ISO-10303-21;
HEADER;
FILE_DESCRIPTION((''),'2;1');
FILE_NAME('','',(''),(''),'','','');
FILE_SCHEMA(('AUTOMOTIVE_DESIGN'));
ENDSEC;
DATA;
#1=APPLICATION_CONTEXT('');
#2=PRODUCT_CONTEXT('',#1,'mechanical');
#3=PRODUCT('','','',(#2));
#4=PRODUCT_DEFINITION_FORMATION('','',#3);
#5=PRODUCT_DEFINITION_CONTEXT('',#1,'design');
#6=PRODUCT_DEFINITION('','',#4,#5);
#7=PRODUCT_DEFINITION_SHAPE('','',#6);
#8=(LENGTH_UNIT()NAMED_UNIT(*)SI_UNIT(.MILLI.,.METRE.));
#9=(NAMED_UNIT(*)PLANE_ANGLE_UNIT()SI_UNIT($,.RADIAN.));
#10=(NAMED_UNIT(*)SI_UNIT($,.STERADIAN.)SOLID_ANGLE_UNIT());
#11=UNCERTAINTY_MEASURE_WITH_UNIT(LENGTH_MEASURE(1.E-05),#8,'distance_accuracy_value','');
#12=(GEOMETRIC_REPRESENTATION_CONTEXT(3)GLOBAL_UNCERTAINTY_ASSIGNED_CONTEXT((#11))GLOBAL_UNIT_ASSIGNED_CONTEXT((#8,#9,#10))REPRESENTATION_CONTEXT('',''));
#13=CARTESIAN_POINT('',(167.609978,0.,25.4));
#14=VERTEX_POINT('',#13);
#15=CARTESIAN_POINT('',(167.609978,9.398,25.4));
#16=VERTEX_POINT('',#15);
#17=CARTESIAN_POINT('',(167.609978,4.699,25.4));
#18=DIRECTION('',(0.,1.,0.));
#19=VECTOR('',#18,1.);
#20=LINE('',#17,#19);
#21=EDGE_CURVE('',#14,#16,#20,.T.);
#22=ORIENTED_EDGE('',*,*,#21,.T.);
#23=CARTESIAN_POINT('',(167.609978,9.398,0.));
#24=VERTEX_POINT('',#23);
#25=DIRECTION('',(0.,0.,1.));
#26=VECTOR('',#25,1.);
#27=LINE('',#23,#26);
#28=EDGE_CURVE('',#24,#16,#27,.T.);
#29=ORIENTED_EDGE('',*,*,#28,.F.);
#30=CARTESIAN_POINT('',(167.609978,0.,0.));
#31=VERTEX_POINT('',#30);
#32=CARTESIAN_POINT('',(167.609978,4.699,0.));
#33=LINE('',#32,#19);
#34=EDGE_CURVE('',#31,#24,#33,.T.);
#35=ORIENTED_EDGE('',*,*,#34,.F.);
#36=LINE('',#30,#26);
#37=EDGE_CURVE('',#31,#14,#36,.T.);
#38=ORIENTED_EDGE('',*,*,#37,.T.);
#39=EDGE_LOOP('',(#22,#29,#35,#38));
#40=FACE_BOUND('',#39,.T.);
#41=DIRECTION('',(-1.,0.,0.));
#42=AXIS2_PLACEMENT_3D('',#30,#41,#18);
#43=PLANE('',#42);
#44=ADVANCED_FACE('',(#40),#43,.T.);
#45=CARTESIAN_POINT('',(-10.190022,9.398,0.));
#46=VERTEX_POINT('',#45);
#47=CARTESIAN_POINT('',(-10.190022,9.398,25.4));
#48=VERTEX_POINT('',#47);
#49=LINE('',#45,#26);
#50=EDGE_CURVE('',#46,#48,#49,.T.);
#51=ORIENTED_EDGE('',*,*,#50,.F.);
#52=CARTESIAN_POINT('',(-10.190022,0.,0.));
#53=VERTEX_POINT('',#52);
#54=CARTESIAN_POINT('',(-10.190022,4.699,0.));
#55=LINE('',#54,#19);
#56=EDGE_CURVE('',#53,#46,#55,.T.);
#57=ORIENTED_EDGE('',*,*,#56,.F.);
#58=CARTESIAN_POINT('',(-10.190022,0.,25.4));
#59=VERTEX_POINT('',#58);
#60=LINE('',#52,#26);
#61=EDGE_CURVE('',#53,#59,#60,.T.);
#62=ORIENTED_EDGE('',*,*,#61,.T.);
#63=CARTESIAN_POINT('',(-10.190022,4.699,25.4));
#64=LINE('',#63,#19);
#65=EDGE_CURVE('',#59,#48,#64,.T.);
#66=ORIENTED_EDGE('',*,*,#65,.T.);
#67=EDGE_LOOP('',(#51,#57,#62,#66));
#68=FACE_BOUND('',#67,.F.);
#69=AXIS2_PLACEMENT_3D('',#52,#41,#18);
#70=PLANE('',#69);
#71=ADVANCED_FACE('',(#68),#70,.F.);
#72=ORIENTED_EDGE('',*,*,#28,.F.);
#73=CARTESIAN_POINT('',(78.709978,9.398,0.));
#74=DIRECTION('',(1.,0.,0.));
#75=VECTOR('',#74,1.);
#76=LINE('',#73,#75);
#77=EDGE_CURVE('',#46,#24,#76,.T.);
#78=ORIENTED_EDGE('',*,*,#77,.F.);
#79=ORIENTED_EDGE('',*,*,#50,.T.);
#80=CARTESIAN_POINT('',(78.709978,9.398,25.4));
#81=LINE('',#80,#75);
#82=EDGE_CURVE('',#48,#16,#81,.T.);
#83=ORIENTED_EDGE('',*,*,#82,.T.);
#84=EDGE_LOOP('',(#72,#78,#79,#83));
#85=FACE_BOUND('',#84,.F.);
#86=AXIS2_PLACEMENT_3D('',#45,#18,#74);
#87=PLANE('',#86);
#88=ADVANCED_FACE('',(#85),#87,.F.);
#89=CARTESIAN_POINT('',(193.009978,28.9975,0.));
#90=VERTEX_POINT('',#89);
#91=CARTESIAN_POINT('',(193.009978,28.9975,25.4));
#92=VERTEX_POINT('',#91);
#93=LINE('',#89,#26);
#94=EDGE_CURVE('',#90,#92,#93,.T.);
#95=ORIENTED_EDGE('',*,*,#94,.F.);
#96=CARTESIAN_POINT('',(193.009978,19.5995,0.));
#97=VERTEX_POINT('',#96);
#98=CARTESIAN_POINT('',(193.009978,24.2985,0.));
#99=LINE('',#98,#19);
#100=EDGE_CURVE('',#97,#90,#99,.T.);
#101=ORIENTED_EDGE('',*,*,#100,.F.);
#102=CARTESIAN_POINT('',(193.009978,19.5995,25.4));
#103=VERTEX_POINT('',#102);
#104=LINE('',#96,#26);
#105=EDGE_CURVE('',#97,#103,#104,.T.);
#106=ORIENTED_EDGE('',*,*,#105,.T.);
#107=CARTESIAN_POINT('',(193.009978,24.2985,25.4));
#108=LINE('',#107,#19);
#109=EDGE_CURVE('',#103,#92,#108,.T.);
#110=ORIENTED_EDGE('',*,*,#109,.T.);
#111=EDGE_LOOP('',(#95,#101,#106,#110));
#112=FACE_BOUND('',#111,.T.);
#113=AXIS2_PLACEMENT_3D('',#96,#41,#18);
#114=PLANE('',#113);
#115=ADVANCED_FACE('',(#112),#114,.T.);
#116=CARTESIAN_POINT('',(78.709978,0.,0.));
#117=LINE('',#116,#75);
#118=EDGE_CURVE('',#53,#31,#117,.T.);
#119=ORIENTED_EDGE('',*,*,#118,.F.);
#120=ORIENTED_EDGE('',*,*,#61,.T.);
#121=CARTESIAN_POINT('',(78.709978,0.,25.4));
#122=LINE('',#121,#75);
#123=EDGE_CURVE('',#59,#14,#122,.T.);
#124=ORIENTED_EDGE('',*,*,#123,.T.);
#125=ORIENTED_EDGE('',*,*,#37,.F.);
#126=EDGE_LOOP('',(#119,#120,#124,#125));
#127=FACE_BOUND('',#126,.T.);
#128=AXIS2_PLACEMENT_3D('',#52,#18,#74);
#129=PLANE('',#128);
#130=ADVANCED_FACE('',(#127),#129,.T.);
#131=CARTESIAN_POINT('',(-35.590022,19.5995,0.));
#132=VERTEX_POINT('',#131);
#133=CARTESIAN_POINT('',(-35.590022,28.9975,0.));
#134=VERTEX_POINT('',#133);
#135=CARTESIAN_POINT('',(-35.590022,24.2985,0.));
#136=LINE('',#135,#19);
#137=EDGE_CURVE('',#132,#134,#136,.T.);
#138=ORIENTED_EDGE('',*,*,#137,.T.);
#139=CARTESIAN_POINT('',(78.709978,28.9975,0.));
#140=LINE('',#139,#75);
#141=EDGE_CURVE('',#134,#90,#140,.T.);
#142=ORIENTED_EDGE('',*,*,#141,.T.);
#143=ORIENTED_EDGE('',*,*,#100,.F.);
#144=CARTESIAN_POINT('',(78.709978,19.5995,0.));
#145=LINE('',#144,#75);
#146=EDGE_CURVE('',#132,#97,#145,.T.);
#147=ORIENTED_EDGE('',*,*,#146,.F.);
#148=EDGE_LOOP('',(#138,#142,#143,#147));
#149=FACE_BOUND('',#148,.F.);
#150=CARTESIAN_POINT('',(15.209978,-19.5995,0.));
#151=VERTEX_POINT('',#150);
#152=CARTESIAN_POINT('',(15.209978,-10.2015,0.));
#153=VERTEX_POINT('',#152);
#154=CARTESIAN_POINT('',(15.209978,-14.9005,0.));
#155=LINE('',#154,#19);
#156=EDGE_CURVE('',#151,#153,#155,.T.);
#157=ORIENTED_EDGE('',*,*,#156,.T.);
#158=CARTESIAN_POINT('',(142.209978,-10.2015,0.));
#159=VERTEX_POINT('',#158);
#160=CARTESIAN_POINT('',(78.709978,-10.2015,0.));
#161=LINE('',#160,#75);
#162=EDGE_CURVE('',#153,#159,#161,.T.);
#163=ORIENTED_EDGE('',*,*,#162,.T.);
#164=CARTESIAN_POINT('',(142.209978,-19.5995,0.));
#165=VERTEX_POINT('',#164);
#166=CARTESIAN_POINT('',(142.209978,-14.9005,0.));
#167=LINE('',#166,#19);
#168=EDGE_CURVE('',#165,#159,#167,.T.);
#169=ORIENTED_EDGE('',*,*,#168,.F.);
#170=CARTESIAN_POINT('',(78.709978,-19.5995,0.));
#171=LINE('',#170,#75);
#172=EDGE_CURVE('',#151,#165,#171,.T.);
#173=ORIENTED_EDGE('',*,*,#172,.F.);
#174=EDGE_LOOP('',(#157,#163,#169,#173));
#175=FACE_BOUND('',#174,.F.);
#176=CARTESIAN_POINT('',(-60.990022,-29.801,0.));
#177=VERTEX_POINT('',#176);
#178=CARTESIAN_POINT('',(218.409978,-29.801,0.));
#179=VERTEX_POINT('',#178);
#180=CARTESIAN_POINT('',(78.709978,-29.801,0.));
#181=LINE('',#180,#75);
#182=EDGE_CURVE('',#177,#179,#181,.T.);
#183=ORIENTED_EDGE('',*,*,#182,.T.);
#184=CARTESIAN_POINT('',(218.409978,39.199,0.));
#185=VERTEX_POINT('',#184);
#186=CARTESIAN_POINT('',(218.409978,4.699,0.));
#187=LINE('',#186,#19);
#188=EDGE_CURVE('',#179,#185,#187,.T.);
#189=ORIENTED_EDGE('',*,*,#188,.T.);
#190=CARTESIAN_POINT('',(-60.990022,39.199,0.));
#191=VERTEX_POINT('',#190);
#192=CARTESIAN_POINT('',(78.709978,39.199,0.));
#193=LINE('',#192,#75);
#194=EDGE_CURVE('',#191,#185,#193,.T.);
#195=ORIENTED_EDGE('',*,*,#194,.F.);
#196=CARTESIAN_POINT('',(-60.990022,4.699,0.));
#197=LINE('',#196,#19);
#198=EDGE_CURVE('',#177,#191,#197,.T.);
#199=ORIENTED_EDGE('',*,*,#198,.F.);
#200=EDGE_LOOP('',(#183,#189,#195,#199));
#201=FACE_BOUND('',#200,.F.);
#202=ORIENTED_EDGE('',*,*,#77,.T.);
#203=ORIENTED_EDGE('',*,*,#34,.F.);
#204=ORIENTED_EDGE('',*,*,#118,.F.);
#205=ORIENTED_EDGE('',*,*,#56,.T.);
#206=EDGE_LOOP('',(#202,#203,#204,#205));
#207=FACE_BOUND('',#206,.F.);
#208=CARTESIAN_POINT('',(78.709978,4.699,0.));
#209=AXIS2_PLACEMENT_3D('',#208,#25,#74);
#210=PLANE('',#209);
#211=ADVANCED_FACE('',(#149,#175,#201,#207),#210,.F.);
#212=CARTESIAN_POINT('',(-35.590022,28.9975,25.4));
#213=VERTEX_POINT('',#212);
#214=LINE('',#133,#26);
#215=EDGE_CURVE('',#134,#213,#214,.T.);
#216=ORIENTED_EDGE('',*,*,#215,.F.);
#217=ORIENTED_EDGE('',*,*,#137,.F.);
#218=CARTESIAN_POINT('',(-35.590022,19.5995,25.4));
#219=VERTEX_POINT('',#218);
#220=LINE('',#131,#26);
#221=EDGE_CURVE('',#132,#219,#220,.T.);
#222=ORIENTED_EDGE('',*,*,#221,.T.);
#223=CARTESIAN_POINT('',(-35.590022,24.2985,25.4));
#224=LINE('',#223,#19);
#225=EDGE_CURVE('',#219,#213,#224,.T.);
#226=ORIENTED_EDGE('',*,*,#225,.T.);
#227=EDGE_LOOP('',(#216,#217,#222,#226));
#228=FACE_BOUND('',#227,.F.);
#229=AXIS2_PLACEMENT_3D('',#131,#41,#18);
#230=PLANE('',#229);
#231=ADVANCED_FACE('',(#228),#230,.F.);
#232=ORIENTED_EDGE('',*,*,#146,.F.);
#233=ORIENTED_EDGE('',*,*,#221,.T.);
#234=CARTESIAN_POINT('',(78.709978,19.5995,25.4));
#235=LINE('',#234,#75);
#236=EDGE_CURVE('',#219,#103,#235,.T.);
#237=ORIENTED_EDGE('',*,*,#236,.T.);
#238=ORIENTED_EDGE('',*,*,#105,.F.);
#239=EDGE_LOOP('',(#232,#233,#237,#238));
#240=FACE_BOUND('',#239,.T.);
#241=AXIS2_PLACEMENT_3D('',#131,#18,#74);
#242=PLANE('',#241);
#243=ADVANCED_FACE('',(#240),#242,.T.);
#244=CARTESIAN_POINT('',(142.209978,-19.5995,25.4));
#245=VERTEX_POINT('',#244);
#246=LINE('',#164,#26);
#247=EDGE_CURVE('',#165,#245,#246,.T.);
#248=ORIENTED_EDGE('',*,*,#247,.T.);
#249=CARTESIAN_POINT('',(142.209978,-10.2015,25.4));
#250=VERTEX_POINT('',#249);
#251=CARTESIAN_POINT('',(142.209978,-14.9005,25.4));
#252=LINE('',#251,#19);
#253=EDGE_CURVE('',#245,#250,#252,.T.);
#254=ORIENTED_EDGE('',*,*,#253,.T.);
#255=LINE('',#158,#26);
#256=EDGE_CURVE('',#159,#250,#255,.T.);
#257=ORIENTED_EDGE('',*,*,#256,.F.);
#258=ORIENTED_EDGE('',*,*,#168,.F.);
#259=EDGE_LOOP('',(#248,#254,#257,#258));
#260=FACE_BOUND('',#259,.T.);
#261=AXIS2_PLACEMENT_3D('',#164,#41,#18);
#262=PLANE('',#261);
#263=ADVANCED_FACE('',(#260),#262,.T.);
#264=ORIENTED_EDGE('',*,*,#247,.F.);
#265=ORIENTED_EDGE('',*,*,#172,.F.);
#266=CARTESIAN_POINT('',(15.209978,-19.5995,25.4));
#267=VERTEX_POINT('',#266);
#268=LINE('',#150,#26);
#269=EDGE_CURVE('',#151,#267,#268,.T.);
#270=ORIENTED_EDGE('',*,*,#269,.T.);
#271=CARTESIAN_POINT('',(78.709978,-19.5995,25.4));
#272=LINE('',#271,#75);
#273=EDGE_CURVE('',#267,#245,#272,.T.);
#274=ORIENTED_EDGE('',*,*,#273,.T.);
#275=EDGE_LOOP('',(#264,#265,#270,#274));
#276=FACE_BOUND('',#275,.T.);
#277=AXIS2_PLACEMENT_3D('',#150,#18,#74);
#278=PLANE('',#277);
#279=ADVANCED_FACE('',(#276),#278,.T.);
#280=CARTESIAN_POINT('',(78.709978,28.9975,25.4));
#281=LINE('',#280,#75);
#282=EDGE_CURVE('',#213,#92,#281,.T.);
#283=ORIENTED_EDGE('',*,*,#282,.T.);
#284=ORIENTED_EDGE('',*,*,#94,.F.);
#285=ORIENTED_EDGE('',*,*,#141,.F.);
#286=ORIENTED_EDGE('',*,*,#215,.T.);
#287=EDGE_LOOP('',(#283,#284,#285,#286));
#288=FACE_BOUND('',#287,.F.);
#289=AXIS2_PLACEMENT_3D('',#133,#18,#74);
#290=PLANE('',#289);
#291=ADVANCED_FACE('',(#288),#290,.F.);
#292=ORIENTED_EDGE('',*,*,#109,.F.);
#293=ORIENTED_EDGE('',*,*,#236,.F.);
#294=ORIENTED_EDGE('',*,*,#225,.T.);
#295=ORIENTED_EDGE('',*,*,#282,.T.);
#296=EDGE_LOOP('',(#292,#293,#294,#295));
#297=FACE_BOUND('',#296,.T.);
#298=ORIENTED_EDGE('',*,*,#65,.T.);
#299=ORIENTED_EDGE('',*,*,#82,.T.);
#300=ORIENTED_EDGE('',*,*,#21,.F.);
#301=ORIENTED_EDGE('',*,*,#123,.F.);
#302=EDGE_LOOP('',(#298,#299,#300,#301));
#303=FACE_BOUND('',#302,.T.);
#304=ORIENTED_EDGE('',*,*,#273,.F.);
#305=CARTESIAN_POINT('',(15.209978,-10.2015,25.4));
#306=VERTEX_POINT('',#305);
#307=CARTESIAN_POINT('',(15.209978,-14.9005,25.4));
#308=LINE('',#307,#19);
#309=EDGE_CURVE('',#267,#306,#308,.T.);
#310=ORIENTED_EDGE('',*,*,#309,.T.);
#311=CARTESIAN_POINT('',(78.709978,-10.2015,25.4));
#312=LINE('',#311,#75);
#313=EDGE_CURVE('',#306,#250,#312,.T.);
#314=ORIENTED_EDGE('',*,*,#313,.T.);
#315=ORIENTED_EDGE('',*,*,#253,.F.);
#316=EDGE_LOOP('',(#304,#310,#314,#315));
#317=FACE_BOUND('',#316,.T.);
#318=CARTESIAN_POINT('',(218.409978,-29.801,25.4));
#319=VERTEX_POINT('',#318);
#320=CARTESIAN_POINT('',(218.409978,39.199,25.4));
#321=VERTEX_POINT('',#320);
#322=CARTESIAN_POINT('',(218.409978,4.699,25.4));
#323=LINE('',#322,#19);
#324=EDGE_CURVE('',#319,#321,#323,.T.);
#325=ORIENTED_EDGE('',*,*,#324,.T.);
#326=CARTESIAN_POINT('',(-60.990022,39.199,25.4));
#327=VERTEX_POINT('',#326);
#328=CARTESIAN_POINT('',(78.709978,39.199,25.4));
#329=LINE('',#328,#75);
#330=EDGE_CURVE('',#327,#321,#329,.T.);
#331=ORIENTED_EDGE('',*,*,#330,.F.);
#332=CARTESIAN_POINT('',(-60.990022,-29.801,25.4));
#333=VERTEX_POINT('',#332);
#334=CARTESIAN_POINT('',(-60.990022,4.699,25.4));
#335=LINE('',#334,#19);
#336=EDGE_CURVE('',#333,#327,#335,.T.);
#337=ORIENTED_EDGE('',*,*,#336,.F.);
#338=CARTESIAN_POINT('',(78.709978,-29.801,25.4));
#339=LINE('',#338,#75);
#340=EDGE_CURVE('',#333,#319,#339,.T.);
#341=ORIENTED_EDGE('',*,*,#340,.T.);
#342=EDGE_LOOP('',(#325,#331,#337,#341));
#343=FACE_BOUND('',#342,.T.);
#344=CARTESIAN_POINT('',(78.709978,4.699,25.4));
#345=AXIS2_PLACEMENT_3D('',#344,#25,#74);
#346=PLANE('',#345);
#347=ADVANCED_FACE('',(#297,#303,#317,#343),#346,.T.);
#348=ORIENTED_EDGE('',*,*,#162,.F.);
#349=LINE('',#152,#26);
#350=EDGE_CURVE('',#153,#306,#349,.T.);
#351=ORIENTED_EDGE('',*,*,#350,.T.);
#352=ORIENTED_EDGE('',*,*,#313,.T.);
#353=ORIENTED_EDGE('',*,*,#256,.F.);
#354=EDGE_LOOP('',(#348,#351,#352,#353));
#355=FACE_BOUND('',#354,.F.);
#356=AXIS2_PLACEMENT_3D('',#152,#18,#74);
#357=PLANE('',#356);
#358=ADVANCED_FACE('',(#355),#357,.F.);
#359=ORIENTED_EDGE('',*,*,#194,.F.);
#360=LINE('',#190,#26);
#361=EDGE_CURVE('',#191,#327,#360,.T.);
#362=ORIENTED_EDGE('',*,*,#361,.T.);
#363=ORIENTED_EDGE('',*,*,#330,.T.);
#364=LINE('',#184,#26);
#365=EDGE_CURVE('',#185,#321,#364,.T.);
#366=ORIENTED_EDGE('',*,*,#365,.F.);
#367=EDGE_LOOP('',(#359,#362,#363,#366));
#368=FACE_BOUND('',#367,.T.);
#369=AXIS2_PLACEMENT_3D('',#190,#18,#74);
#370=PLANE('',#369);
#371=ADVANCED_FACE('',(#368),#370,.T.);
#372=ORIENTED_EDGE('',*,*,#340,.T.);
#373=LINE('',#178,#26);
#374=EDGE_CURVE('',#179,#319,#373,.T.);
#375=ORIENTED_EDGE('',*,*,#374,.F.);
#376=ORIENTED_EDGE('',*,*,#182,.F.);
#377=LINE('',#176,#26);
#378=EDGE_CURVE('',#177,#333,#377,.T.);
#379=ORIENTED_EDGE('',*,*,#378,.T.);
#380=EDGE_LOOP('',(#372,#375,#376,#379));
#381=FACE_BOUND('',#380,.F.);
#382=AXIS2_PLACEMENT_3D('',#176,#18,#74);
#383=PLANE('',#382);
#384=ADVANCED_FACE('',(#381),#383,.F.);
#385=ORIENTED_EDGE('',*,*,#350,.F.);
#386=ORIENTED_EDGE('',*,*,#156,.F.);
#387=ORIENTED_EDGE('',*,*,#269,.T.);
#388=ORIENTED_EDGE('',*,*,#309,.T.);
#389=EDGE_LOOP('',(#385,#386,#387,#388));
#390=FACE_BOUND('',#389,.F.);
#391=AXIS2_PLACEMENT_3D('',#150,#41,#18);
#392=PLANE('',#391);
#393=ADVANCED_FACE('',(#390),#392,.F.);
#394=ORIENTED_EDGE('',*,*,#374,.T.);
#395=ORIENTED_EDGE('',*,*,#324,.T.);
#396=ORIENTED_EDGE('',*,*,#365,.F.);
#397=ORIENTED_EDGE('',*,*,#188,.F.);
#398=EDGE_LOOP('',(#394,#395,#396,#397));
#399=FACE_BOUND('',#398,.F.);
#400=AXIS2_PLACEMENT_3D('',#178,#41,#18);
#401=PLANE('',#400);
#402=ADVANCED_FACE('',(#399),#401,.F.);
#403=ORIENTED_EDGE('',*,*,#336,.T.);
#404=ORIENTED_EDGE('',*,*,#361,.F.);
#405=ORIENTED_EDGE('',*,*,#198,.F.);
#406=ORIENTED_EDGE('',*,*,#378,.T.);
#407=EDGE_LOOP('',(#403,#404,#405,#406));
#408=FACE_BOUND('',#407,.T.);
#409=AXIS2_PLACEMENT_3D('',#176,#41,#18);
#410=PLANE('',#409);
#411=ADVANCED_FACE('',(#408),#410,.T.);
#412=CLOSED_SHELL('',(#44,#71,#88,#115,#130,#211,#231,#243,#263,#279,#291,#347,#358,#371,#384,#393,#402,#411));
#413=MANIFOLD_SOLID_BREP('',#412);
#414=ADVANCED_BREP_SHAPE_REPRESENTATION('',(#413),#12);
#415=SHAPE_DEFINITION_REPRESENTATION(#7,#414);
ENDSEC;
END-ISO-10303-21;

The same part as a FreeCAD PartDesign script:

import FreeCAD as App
import Part
import Sketcher
from FreeCAD import Vector
Q = App.Units.Quantity


def add_polygon(sketch, points):
    """Adds a closed chain of lines whose ends are joined by coincident constraints."""
    first, n = sketch.GeometryCount, len(points)
    for a, b in zip(points, points[1:] + points[:1]):
        sketch.addGeometry(Part.LineSegment(App.Vector(*a, 0), App.Vector(*b, 0)), False)
    for i in range(n):
        sketch.addConstraint(Sketcher.Constraint("Coincident", first + i, 2, first + (i + 1) % n, 1))

doc = App.newDocument("Part")
body = doc.addObject("PartDesign::Body", "Body")

sketch1 = body.newObject("Sketcher::SketchObject", "Sketch")
sketch1.AttachmentSupport = (doc.getObject("XY_Plane"), [""])
sketch1.MapMode = "FlatFace"
add_polygon(sketch1, [(-61, 39), (-61, -30), (218, -30), (218, 39)])
add_polygon(sketch1, [(142, -20), (15, -20), (15, -10), (142, -10)])
add_polygon(sketch1, [(168, 0), (-10, 0), (-10, 9), (168, 9)])
add_polygon(sketch1, [(193, 20), (-36, 20), (-36, 29), (193, 29)])
sketch1.addConstraint([
    Sketcher.Constraint("Vertical", 0),
    Sketcher.Constraint("Horizontal", 1),
    Sketcher.Constraint("Vertical", 2),
    Sketcher.Constraint("Horizontal", 3),
    Sketcher.Constraint("Horizontal", 4),
    Sketcher.Constraint("Vertical", 5),
    Sketcher.Constraint("Horizontal", 6),
    Sketcher.Constraint("Vertical", 7),
    Sketcher.Constraint("Horizontal", 8),
    Sketcher.Constraint("Vertical", 9),
    Sketcher.Constraint("Horizontal", 10),
    Sketcher.Constraint("Vertical", 11),
    Sketcher.Constraint("Horizontal", 12),
    Sketcher.Constraint("Vertical", 13),
    Sketcher.Constraint("Horizontal", 14),
    Sketcher.Constraint("Vertical", 15),
    Sketcher.Constraint("PointOnObject", 8, 2, -1),
    Sketcher.Constraint("Equal", 7, 9),
    Sketcher.Constraint("Equal", 11, 13),
    Sketcher.Constraint("DistanceX", 1, 1, 1, 2, Q("11 in")),
    Sketcher.Constraint("DistanceX", 4, 2, 4, 1, Q("5 in")),
    Sketcher.Constraint("DistanceX", 8, 2, 8, 1, Q("7 in")),
    Sketcher.Constraint("DistanceX", 12, 2, 12, 1, Q("9 in")),
    Sketcher.Constraint("DistanceX", 0, 2, 4, 2, Q("3 in")),
    Sketcher.Constraint("DistanceX", 8, 2, 5, 2, Q("1 in")),
    Sketcher.Constraint("DistanceX", 12, 2, 9, 2, Q("1 in")),
    Sketcher.Constraint("DistanceY", 5, 1, 5, 2, Q("0.37 in")),
    Sketcher.Constraint("DistanceY", 0, 2, 0, 1, Q("69 mm")),
    Sketcher.Constraint("DistanceY", 0, 2, -1, 1, Q("29.801 mm")),
    Sketcher.Constraint("DistanceY", 4, 2, -1, 1, Q("19.5995 mm")),
    Sketcher.Constraint("DistanceY", -1, 1, 12, 2, Q("19.5995 mm")),
    Sketcher.Constraint("DistanceX", -1, 1, 1, 2, Q("218.409978 mm")),
])
pad1 = body.newObject("PartDesign::Pad", "Pad")
pad1.Profile = sketch1
pad1.Length = Q("1 in")

doc.recompute()
